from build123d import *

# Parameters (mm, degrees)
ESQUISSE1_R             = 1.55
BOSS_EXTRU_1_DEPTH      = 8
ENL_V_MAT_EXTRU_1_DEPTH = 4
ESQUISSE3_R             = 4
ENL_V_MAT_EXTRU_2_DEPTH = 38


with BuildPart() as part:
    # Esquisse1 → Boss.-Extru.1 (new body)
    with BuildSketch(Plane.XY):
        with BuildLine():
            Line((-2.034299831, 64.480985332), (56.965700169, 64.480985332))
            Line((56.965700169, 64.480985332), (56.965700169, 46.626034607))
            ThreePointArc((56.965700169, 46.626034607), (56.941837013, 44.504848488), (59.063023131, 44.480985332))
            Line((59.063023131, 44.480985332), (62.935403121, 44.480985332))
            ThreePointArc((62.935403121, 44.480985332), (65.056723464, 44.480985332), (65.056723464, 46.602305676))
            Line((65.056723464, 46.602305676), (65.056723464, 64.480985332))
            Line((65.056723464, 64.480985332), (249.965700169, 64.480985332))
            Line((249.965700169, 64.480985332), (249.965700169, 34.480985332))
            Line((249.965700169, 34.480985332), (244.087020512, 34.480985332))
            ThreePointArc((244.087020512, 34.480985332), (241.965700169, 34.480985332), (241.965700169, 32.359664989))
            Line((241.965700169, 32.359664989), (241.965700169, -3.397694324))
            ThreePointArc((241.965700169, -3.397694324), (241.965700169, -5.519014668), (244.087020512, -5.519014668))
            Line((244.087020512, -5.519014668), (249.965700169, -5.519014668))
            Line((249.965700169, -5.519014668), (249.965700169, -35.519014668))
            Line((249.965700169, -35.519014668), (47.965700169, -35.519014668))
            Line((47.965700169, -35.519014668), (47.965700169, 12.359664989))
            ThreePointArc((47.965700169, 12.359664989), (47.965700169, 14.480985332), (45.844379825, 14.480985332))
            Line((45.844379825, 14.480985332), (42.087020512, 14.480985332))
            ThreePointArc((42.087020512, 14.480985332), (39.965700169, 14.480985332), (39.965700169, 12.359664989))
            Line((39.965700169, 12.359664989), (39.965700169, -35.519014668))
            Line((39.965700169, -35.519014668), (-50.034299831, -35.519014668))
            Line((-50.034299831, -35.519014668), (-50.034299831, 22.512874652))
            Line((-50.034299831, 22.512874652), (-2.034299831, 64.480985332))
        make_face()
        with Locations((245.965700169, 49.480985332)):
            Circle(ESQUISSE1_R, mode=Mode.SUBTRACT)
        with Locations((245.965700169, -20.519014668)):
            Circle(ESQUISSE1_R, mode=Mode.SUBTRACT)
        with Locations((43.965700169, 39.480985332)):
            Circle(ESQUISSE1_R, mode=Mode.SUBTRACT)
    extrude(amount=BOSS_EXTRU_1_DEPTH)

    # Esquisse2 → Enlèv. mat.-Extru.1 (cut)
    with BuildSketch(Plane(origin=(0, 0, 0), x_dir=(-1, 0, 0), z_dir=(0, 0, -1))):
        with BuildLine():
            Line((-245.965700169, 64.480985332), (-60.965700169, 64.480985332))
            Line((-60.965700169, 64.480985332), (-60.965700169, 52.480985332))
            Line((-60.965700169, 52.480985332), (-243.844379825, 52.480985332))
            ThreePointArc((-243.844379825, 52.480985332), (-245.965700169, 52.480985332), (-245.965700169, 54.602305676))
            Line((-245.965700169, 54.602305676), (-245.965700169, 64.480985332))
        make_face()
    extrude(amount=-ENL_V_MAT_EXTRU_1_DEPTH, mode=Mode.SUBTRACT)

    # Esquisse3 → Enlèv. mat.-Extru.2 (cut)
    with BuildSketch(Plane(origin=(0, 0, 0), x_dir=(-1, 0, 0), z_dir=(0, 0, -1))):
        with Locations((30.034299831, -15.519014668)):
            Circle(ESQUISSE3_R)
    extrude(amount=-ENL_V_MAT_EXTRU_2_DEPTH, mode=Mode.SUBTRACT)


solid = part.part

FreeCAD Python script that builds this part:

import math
import FreeCAD as App
import Part
import Sketcher
Q = App.Units.Quantity

doc = App.newDocument("Part")
params = doc.addObject("Spreadsheet::Sheet", "Params")
for row, (alias, value) in enumerate([
    ("sketch1_diameter", "3.1 mm"),
    ("sketch1_radius", "1.5 mm"),
    ("sketch1_width", "59 mm"),
    ("sketch1_width2", "90 mm"),
    ("sketch1_width3", "202 mm"),
    ("pad1_length", "8 mm"),
    ("sketch2_radius", "1.5 mm"),
    ("sketch2_width", "185 mm"),
    ("sketch2_height", "12 mm"),
    ("pocket1_length", "4 mm"),
    ("sketch3_diameter", "8 mm"),
    ("pocket2_length", "38 mm"),
], start=1):
    params.set(f"A{row}", alias)
    params.set(f"B{row}", "=" + value)
    params.setAlias(f"B{row}", alias)

body = doc.addObject("PartDesign::Body", "Body")

sketch1 = body.newObject("Sketcher::SketchObject", "Sketch")
sketch1.AttachmentSupport = (doc.getObject("XY_Plane"), [""])
sketch1.MapMode = "FlatFace"
sketch1.addGeometry([
    Part.LineSegment(App.Vector(57, 64.5, 0), App.Vector(-2, 64.5, 0)),
    Part.LineSegment(App.Vector(-2, 64.5, 0), App.Vector(-50, 22.5, 0)),
    Part.LineSegment(App.Vector(-50, 22.5, 0), App.Vector(-50, -35.5, 0)),
    Part.LineSegment(App.Vector(-50, -35.5, 0), App.Vector(40, -35.5, 0)),
    Part.LineSegment(App.Vector(40, -35.5, 0), App.Vector(40, 12.4, 0)),
    Part.ArcOfCircle(Part.Circle(App.Vector(41, 13.4, 0), App.Vector(0, 0, 1), 1.5), math.radians(45), math.radians(225)),
    Part.LineSegment(App.Vector(42.1, 14.5, 0), App.Vector(45.8, 14.5, 0)),
    Part.ArcOfCircle(Part.Circle(App.Vector(46.9, 13.4, 0), App.Vector(0, 0, 1), 1.5), math.radians(-45), math.radians(135)),
    Part.LineSegment(App.Vector(48, 12.4, 0), App.Vector(48, -35.5, 0)),
    Part.LineSegment(App.Vector(48, -35.5, 0), App.Vector(250, -35.5, 0)),
    Part.LineSegment(App.Vector(250, -35.5, 0), App.Vector(250, -5.5, 0)),
    Part.LineSegment(App.Vector(250, -5.5, 0), App.Vector(244.1, -5.5, 0)),
    Part.ArcOfCircle(Part.Circle(App.Vector(243, -4.5, 0), App.Vector(0, 0, 1), 1.5), math.radians(135), math.radians(315)),
    Part.LineSegment(App.Vector(242, -3.4, 0), App.Vector(242, 32.4, 0)),
    Part.ArcOfCircle(Part.Circle(App.Vector(243, 33.4, 0), App.Vector(0, 0, 1), 1.5), math.radians(45), math.radians(225)),
    Part.LineSegment(App.Vector(244.1, 34.5, 0), App.Vector(250, 34.5, 0)),
    Part.LineSegment(App.Vector(250, 34.5, 0), App.Vector(250, 64.5, 0)),
    Part.LineSegment(App.Vector(250, 64.5, 0), App.Vector(65.1, 64.5, 0)),
    Part.LineSegment(App.Vector(65.1, 64.5, 0), App.Vector(65.1, 46.6, 0)),
    Part.ArcOfCircle(Part.Circle(App.Vector(64, 45.5, 0), App.Vector(0, 0, 1), 1.5), math.radians(-135), math.radians(45)),
    Part.LineSegment(App.Vector(62.9, 44.5, 0), App.Vector(59.1, 44.5, 0)),
    Part.ArcOfCircle(Part.Circle(App.Vector(58, 45.6, 0), App.Vector(0, 0, 1), 1.5), math.radians(134), math.radians(314)),
    Part.LineSegment(App.Vector(57, 46.6, 0), App.Vector(57, 64.5, 0)),
    Part.Circle(App.Vector(246, -20.5, 0), App.Vector(0, 0, 1), 1.6),
    Part.Circle(App.Vector(246, 49.5, 0), App.Vector(0, 0, 1), 1.6),
    Part.Circle(App.Vector(44, 39.5, 0), App.Vector(0, 0, 1), 1.6),
], False)
sketch1.addConstraint([
    Sketcher.Constraint("Coincident", 0, 2, 1, 1),
    Sketcher.Constraint("Coincident", 1, 2, 2, 1),
    Sketcher.Constraint("Coincident", 2, 2, 3, 1),
    Sketcher.Constraint("Coincident", 3, 2, 4, 1),
    Sketcher.Constraint("Coincident", 4, 2, 5, 2),
    Sketcher.Constraint("Coincident", 5, 1, 6, 1),
    Sketcher.Constraint("Coincident", 6, 2, 7, 2),
    Sketcher.Constraint("Coincident", 7, 1, 8, 1),
    Sketcher.Constraint("Coincident", 8, 2, 9, 1),
    Sketcher.Constraint("Coincident", 9, 2, 10, 1),
    Sketcher.Constraint("Coincident", 10, 2, 11, 1),
    Sketcher.Constraint("Coincident", 11, 2, 12, 2),
    Sketcher.Constraint("Coincident", 12, 1, 13, 1),
    Sketcher.Constraint("Coincident", 13, 2, 14, 2),
    Sketcher.Constraint("Coincident", 14, 1, 15, 1),
    Sketcher.Constraint("Coincident", 15, 2, 16, 1),
    Sketcher.Constraint("Coincident", 16, 2, 17, 1),
    Sketcher.Constraint("Coincident", 17, 2, 18, 1),
    Sketcher.Constraint("Coincident", 18, 2, 19, 2),
    Sketcher.Constraint("Coincident", 19, 1, 20, 1),
    Sketcher.Constraint("Coincident", 20, 2, 21, 2),
    Sketcher.Constraint("Coincident", 21, 1, 22, 1),
    Sketcher.Constraint("Coincident", 22, 2, 0, 1),
    Sketcher.Constraint("Horizontal", 0),
    Sketcher.Constraint("Vertical", 2),
    Sketcher.Constraint("Horizontal", 3),
    Sketcher.Constraint("Vertical", 4),
    Sketcher.Constraint("Horizontal", 6),
    Sketcher.Constraint("Vertical", 8),
    Sketcher.Constraint("Horizontal", 9),
    Sketcher.Constraint("Vertical", 10),
    Sketcher.Constraint("Horizontal", 11),
    Sketcher.Constraint("Vertical", 13),
    Sketcher.Constraint("Horizontal", 15),
    Sketcher.Constraint("Vertical", 16),
    Sketcher.Constraint("Horizontal", 17),
    Sketcher.Constraint("Vertical", 18),
    Sketcher.Constraint("Horizontal", 20),
    Sketcher.Constraint("Vertical", 22),
    Sketcher.Constraint("Equal", 5, 7),
    Sketcher.Constraint("Equal", 7, 12),
    Sketcher.Constraint("Equal", 12, 14),
    Sketcher.Constraint("Equal", 14, 19),
    Sketcher.Constraint("Equal", 19, 21),
    Sketcher.Constraint("Equal", 23, 24),
    Sketcher.Constraint("Equal", 24, 25),
    Sketcher.Constraint("Horizontal", 5, 3, 7, 3),
    Sketcher.Constraint("Horizontal", 4, 2, 7, 1),
    Sketcher.Constraint("Horizontal", 3, 2, 8, 2),
    Sketcher.Constraint("Horizontal", 0, 2, 16, 2),
    Sketcher.Constraint("Vertical", 12, 3, 14, 3),
    Sketcher.Constraint("Vertical", 23, 3, 24, 3),
    Sketcher.Constraint("Vertical", 11, 2, 14, 1),
    Sketcher.Constraint("Vertical", 10, 2, 15, 2),
    Sketcher.Constraint("Equal", 10, 16),
    Sketcher.Constraint("Diameter", 23, Q("3.1 mm")),
    Sketcher.Constraint("Radius", 5, Q("1.5 mm")),
    Sketcher.Constraint("DistanceX", 0, 2, 0, 1, Q("59 mm")),
    Sketcher.Constraint("DistanceX", 3, 1, 3, 2, Q("90 mm")),
    Sketcher.Constraint("DistanceX", 9, 1, 9, 2, Q("202 mm")),
    Sketcher.Constraint("DistanceY", 10, 1, 10, 2, Q("30 mm")),
    Sketcher.Constraint("DistanceX", 5, 3, 12, 3, Q("202 mm")),
    Sketcher.Constraint("DistanceY", 7, 3, 14, 3, Q("20 mm")),
    Sketcher.Constraint("DistanceY", 12, 3, 19, 3, Q("50 mm")),
    Sketcher.Constraint("DistanceY", 23, 3, 24, 3, Q("70 mm")),
    Sketcher.Constraint("DistanceX", 0, 2, 25, 3, Q("46 mm")),
    Sketcher.Constraint("DistanceY", 25, 3, 0, 2, Q("25 mm")),
    Sketcher.Constraint("DistanceX", 1, 2, 0, 2, Q("48 mm")),
    Sketcher.Constraint("DistanceY", 2, 2, 0, 2, Q("100 mm")),
    Sketcher.Constraint("DistanceY", 5, 1, 25, 3, Q("25 mm")),
    Sketcher.Constraint("DistanceX", 4, 2, 7, 1, Q("8 mm")),
    Sketcher.Constraint("DistanceX", 23, 3, 9, 2, Q("4 mm")),
    Sketcher.Constraint("DistanceY", 9, 2, 23, 3, Q("15 mm")),
    Sketcher.Constraint("DistanceX", 12, 1, 10, 2, Q("8 mm")),
    Sketcher.Constraint("DistanceY", 25, 3, 19, 1, Q("5 mm")),
    Sketcher.Constraint("DistanceX", 5, 3, 21, 3, Q("16.988001 mm")),
    Sketcher.Constraint("DistanceX", 6, 1, 6, 2, Q("3.757359 mm")),
    Sketcher.Constraint("DistanceX", 20, 2, 20, 1, Q("3.87238 mm")),
    Sketcher.Constraint("DistanceY", 2, 2, 2, 1, Q("58.031889 mm")),
    Sketcher.Constraint("DistanceY", 18, 2, 18, 1, Q("17.87868 mm")),
    Sketcher.Constraint("DistanceY", 22, 1, 22, 2, Q("17.854951 mm")),
    Sketcher.Constraint("DistanceX", -1, 1, 23, 3, Q("245.9657 mm")),
    Sketcher.Constraint("DistanceX", 21, 3, 19, 3, Q("5.981702 mm")),
    Sketcher.Constraint("DistanceY", -1, 1, 21, 3, Q("45.55351 mm")),
])
sketch1.setExpression("Constraints[55]", "Params.sketch1_diameter")
sketch1.setExpression("Constraints[56]", "Params.sketch1_radius")
sketch1.setExpression("Constraints[57]", "Params.sketch1_width")
sketch1.setExpression("Constraints[58]", "Params.sketch1_width2")
sketch1.setExpression("Constraints[59]", "Params.sketch1_width3")
pad1 = body.newObject("PartDesign::Pad", "Pad")
pad1.Profile = sketch1
pad1.setExpression("Length", "Params.pad1_length")

sketch2 = body.newObject("Sketcher::SketchObject", "Sketch001")
sketch2.AttachmentSupport = (doc.getObject("XY_Plane"), [""])
sketch2.MapMode = "FlatFace"
sketch2.addGeometry([
    Part.LineSegment(App.Vector(61, 64.5, 0), App.Vector(246, 64.5, 0)),
    Part.LineSegment(App.Vector(246, 64.5, 0), App.Vector(246, 54.6, 0)),
    Part.ArcOfCircle(Part.Circle(App.Vector(244.9, 53.5, 0), App.Vector(0, 0, 1), 1.5), math.radians(-135), math.radians(45)),
    Part.LineSegment(App.Vector(243.8, 52.5, 0), App.Vector(61, 52.5, 0)),
    Part.LineSegment(App.Vector(61, 52.5, 0), App.Vector(61, 64.5, 0)),
], False)
sketch2.addConstraint([
    Sketcher.Constraint("Coincident", 0, 2, 1, 1),
    Sketcher.Constraint("Coincident", 1, 2, 2, 2),
    Sketcher.Constraint("Coincident", 2, 1, 3, 1),
    Sketcher.Constraint("Coincident", 3, 2, 4, 1),
    Sketcher.Constraint("Coincident", 4, 2, 0, 1),
    Sketcher.Constraint("Horizontal", 0),
    Sketcher.Constraint("Vertical", 1),
    Sketcher.Constraint("Horizontal", 3),
    Sketcher.Constraint("Vertical", 4),
    Sketcher.Constraint("Radius", 2, Q("1.5 mm")),
    Sketcher.Constraint("DistanceX", 0, 1, 0, 2, Q("185 mm")),
    Sketcher.Constraint("DistanceY", 4, 1, 4, 2, Q("12 mm")),
    Sketcher.Constraint("DistanceX", 3, 2, 3, 1, Q("182.87868 mm")),
    Sketcher.Constraint("DistanceX", -1, 1, 0, 2, Q("245.9657 mm")),
    Sketcher.Constraint("DistanceX", -1, 1, 2, 3, Q("244.90504 mm")),
    Sketcher.Constraint("DistanceY", -1, 1, 2, 3, Q("53.541646 mm")),
])
sketch2.setExpression("Constraints[9]", "Params.sketch2_radius")
sketch2.setExpression("Constraints[10]", "Params.sketch2_width")
sketch2.setExpression("Constraints[11]", "Params.sketch2_height")
pocket1 = body.newObject("PartDesign::Pocket", "Pocket")
pocket1.Profile = sketch2
pocket1.setExpression("Length", "Params.pocket1_length")
pocket1.Reversed = True

sketch3 = body.newObject("Sketcher::SketchObject", "Sketch002")
sketch3.AttachmentSupport = (doc.getObject("XY_Plane"), [""])
sketch3.MapMode = "FlatFace"
sketch3.addGeometry(Part.Circle(App.Vector(-30, -15.5, 0), App.Vector(0, 0, 1), 4), False)
sketch3.addConstraint([
    Sketcher.Constraint("Diameter", 0, Q("8 mm")),
    Sketcher.Constraint("DistanceX", 0, 3, -1, 1, Q("30.0343 mm")),
    Sketcher.Constraint("DistanceY", 0, 3, -1, 1, Q("15.519015 mm")),
])
sketch3.setExpression("Constraints[0]", "Params.sketch3_diameter")
pocket2 = body.newObject("PartDesign::Pocket", "Pocket001")
pocket2.Profile = sketch3
pocket2.setExpression("Length", "Params.pocket2_length")
pocket2.Reversed = True

doc.recompute()
